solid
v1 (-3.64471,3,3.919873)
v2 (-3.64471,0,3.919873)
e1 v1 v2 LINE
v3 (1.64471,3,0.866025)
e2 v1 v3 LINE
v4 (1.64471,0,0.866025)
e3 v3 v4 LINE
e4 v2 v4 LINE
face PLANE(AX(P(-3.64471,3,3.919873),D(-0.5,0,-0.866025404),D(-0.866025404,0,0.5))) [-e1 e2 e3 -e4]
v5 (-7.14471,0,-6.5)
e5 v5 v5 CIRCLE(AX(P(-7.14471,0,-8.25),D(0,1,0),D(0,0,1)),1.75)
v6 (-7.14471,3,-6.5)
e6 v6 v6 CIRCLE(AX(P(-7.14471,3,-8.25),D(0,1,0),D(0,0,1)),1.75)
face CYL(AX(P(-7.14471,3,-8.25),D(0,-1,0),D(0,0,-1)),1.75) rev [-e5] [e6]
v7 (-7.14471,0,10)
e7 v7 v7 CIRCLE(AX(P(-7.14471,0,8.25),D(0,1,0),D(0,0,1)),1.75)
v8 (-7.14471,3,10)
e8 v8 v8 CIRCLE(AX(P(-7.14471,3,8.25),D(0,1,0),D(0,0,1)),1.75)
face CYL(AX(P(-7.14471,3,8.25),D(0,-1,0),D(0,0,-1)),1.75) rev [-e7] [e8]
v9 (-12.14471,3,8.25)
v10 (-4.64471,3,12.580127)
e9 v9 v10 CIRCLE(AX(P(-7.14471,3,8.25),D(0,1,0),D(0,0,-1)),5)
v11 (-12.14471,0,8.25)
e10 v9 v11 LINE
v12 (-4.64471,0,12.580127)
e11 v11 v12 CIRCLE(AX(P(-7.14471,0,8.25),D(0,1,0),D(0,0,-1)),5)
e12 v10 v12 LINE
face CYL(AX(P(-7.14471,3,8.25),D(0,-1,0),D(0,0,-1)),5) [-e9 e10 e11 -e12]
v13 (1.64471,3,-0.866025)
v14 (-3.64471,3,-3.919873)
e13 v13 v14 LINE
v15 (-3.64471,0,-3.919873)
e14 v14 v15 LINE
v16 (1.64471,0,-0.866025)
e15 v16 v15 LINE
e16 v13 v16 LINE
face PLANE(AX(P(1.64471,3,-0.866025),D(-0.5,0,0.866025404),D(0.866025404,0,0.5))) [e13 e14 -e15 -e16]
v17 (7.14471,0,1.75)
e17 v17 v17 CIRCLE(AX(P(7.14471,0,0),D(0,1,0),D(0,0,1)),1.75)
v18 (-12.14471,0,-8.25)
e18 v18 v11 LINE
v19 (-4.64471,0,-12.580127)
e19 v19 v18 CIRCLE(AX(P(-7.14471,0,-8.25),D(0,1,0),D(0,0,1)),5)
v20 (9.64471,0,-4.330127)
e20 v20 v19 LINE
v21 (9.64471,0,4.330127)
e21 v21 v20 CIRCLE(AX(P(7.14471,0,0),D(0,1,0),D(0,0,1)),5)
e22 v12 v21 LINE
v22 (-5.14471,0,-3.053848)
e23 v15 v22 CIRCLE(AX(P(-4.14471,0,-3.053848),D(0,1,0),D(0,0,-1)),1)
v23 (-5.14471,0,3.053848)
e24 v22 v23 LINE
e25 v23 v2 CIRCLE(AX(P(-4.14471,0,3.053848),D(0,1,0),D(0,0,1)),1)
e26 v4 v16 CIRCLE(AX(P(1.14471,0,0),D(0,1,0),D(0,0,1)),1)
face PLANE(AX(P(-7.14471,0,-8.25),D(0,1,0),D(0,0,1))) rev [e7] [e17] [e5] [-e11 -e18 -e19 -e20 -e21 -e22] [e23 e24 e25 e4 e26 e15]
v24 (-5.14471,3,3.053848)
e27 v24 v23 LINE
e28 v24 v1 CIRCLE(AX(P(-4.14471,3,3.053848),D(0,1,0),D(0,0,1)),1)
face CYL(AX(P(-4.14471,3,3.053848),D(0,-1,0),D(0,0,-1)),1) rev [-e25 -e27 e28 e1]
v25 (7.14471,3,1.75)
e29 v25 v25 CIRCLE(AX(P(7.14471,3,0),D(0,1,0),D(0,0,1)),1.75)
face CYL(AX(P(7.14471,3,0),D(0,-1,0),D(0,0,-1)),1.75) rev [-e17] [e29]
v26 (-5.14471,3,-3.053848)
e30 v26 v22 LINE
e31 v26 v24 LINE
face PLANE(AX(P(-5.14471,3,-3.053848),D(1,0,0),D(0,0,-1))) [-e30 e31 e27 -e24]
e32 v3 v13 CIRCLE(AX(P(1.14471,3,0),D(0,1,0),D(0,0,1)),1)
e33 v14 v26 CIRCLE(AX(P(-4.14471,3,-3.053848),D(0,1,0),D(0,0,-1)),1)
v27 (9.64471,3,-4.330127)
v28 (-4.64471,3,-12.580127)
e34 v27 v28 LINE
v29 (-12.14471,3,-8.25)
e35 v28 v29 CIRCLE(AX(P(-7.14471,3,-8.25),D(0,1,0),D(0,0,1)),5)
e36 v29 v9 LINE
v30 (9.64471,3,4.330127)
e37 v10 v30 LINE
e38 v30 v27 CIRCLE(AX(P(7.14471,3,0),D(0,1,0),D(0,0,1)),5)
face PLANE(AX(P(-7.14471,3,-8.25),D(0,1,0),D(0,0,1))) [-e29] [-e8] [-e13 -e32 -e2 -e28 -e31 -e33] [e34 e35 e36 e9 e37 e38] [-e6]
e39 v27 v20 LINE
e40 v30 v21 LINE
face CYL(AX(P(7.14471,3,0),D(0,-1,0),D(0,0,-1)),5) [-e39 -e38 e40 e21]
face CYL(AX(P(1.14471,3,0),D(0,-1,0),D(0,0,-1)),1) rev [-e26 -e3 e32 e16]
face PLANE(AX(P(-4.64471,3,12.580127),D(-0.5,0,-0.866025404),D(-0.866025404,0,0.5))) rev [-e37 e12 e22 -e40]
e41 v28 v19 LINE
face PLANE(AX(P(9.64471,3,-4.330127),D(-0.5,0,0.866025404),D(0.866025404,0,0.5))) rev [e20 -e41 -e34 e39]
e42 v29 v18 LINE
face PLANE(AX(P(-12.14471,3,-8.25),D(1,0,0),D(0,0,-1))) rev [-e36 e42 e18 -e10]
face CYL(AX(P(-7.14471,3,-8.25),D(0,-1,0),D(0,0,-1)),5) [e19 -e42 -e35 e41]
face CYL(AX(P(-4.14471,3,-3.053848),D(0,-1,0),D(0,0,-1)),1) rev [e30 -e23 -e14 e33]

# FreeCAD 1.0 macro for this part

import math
import FreeCAD as App
import Part
import Sketcher
Q = App.Units.Quantity

doc = App.newDocument("Part")
body = doc.addObject("PartDesign::Body", "Body")

# Sketch on XZ plane
sketch1 = body.newObject("Sketcher::SketchObject", "Sketch")
sketch1.AttachmentSupport = (doc.getObject("XZ_Plane"), [""])
sketch1.MapMode = "FlatFace"
sketch1.addGeometry([
    Part.LineSegment(App.Vector(9.64471, -4.330127, 0), App.Vector(-4.64471, -12.580127, 0)),  # 0
    Part.ArcOfCircle(Part.Circle(App.Vector(-7.14471, -8.25, 0), App.Vector(0, 0, 1), 5), math.radians(180), math.radians(300)),  # 1
    Part.LineSegment(App.Vector(-12.14471, -8.25, 0), App.Vector(-12.14471, 8.25, 0)),  # 2
    Part.ArcOfCircle(Part.Circle(App.Vector(-7.14471, 8.25, 0), App.Vector(0, 0, 1), 5), math.radians(60), math.radians(180)),  # 3
    Part.LineSegment(App.Vector(-4.64471, 12.580127, 0), App.Vector(9.64471, 4.330127, 0)),  # 4
    Part.ArcOfCircle(Part.Circle(App.Vector(7.14471, 0, 0), App.Vector(0, 0, 1), 5), math.radians(-60), math.radians(60)),  # 5
    Part.Circle(App.Vector(-7.14471, 8.25, 0), App.Vector(0, 0, 1), 1.75),  # 6
    Part.LineSegment(App.Vector(-3.64471, -3.919873, 0), App.Vector(1.64471, -0.866025, 0)),  # 7
    Part.ArcOfCircle(Part.Circle(App.Vector(1.14471, 0, 0), App.Vector(0, 0, 1), 1), math.radians(-60), math.radians(60)),  # 8
    Part.LineSegment(App.Vector(1.64471, 0.866025, 0), App.Vector(-3.64471, 3.919873, 0)),  # 9
    Part.ArcOfCircle(Part.Circle(App.Vector(-4.14471, 3.053848, 0), App.Vector(0, 0, 1), 1), math.radians(60), math.radians(180)),  # 10
    Part.LineSegment(App.Vector(-5.14471, 3.053848, 0), App.Vector(-5.14471, -3.053848, 0)),  # 11
    Part.ArcOfCircle(Part.Circle(App.Vector(-4.14471, -3.053848, 0), App.Vector(0, 0, 1), 1), math.radians(180), math.radians(300)),  # 12
    Part.Circle(App.Vector(-7.14471, -8.25, 0), App.Vector(0, 0, 1), 1.75),  # 13
    Part.Circle(App.Vector(7.14471, 0, 0), App.Vector(0, 0, 1), 1.75),  # 14
], False)
sketch1.addConstraint([
    Sketcher.Constraint("Tangent", 0, 2, 1, 2),
    Sketcher.Constraint("Tangent", 1, 1, 2, 1),
    Sketcher.Constraint("Tangent", 2, 2, 3, 2),
    Sketcher.Constraint("Tangent", 3, 1, 4, 1),
    Sketcher.Constraint("Tangent", 4, 2, 5, 2),
    Sketcher.Constraint("Tangent", 5, 1, 0, 1),
    Sketcher.Constraint("Tangent", 7, 2, 8, 1),
    Sketcher.Constraint("Tangent", 8, 2, 9, 1),
    Sketcher.Constraint("Tangent", 9, 2, 10, 1),
    Sketcher.Constraint("Tangent", 10, 2, 11, 1),
    Sketcher.Constraint("Tangent", 11, 2, 12, 1),
    Sketcher.Constraint("Tangent", 12, 2, 7, 1),
    Sketcher.Constraint("Vertical", 2),
    Sketcher.Constraint("Vertical", 11),
    Sketcher.Constraint("Coincident", 6, 3, 3, 3),
    Sketcher.Constraint("Coincident", 13, 3, 1, 3),
    Sketcher.Constraint("Coincident", 14, 3, 5, 3),
    Sketcher.Constraint("Equal", 1, 3),
    Sketcher.Constraint("Equal", 3, 5),
    Sketcher.Constraint("Equal", 8, 10),
    Sketcher.Constraint("Equal", 10, 12),
    Sketcher.Constraint("Equal", 6, 13),
    Sketcher.Constraint("Equal", 13, 14),
    Sketcher.Constraint("Symmetric", 0, 2, 3, 1, -1),
    Sketcher.Constraint("Symmetric", 7, 2, 8, 2, -1),
    Sketcher.Constraint("Parallel", 0, 7),
    Sketcher.Constraint("Radius", 1, 5.0),
    Sketcher.Constraint("Radius", 8, 1.0),
    Sketcher.Constraint("Diameter", 6, 3.5),
    Sketcher.Constraint("Angle", 0, Q("-150 deg")),
    Sketcher.Constraint("DistanceY", 2, 1, 2, 2, 16.5),
    Sketcher.Constraint("DistanceX", 8, 3, 5, 3, 6.0),
    Sketcher.Constraint("DistanceX", 3, 3, 10, 3, 3.0),
    Sketcher.Constraint("DistanceX", 1, 3, -1, 1, 7.14471),
])
pad1 = body.newObject("PartDesign::Pad", "Pad")
pad1.Profile = sketch1
pad1.Length = 3
pad1.Reversed = True

doc.recompute()
